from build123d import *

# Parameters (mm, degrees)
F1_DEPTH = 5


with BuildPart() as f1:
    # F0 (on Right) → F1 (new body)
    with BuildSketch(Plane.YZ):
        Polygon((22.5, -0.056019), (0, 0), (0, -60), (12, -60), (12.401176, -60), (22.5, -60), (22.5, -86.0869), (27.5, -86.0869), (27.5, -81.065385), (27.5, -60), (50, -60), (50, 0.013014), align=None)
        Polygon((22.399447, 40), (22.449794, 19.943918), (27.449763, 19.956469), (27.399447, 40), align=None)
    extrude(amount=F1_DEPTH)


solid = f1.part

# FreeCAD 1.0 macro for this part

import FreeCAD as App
import Part
import Sketcher


def add_polygon(sketch, points):
    """Adds a closed chain of lines whose ends are joined by coincident constraints."""
    first, n = sketch.GeometryCount, len(points)
    for a, b in zip(points, points[1:] + points[:1]):
        sketch.addGeometry(Part.LineSegment(App.Vector(*a, 0), App.Vector(*b, 0)), False)
    for i in range(n):
        sketch.addConstraint(Sketcher.Constraint("Coincident", first + i, 2, first + (i + 1) % n, 1))

doc = App.newDocument("Part")
params = doc.addObject("Spreadsheet::Sheet", "Params")
for row, (alias, value) in enumerate([
    ("sketch1_width", "5 mm"),
    ("sketch1_height", "60 mm"),
    ("sketch1_width2", "22.5 mm"),
    ("pad1_length", "5 mm"),
], start=1):
    params.set(f"A{row}", alias)
    params.set(f"B{row}", "=" + value)
    params.setAlias(f"B{row}", alias)

body = doc.addObject("PartDesign::Body", "Body")
body.AllowCompound = True

# Sketch on YZ plane
sketch1 = body.newObject("Sketcher::SketchObject", "Sketch")
sketch1.AttachmentSupport = (doc.getObject("YZ_Plane"), [""])
sketch1.MapMode = "FlatFace"
add_polygon(sketch1, [(22.5, -0.1), (0, 0), (0, -60), (22.5, -60), (22.5, -86.1), (27.5, -86.1), (27.5, -60), (50, -60), (50, 0)])  # lines 0-8
add_polygon(sketch1, [(22.4, 40), (22.4, 19.9), (27.4, 20), (27.4, 40)])  # lines 9-12
sketch1.addConstraint([
    Sketcher.Constraint("Vertical", 1),
    Sketcher.Constraint("Horizontal", 2),
    Sketcher.Constraint("Vertical", 3),
    Sketcher.Constraint("Horizontal", 4),
    Sketcher.Constraint("Vertical", 5),
    Sketcher.Constraint("Horizontal", 6),
    Sketcher.Constraint("Vertical", 7),
    Sketcher.Constraint("Horizontal", 12),
    Sketcher.Constraint("Coincident", 0, 2, -1, 1),
    Sketcher.Constraint("Perpendicular", 8, 9),
    Sketcher.Constraint("Perpendicular", 9, 10),
    Sketcher.Constraint("Perpendicular", 10, 11),
    Sketcher.Constraint("Horizontal", 2, 2, 5, 2),
    Sketcher.Constraint("Vertical", 3, 2, 8, 2),
    Sketcher.Constraint("Equal", 2, 6),
    Sketcher.Constraint("Equal", 4, 12),
    Sketcher.Constraint("DistanceX", 4, 1, 4, 2, 5.0),
    Sketcher.Constraint("DistanceY", 1, 2, 1, 1, 60.0),
    Sketcher.Constraint("DistanceX", 2, 1, 2, 2, 22.5),
    Sketcher.Constraint("DistanceY", -1, 1, 11, 2, 40.0),
    Sketcher.Constraint("DistanceY", 3, 2, 3, 1, 26.0869),
    Sketcher.Constraint("DistanceY", 7, 1, 7, 2, 60.013014),
    Sketcher.Constraint("DistanceY", 8, 2, -1, 1, 0.056019),
    Sketcher.Constraint("DistanceY", -1, 1, 9, 2, 19.943918),
    Sketcher.Constraint("DistanceX", -1, 1, 9, 2, 22.449794),
])
sketch1.setExpression("Constraints[29]", "Params.sketch1_width")
sketch1.setExpression("Constraints[30]", "Params.sketch1_height")
sketch1.setExpression("Constraints[31]", "Params.sketch1_width2")
pad1 = body.newObject("PartDesign::Pad", "Pad")
pad1.Profile = sketch1
pad1.setExpression("Length", "Params.pad1_length")

doc.recompute()
